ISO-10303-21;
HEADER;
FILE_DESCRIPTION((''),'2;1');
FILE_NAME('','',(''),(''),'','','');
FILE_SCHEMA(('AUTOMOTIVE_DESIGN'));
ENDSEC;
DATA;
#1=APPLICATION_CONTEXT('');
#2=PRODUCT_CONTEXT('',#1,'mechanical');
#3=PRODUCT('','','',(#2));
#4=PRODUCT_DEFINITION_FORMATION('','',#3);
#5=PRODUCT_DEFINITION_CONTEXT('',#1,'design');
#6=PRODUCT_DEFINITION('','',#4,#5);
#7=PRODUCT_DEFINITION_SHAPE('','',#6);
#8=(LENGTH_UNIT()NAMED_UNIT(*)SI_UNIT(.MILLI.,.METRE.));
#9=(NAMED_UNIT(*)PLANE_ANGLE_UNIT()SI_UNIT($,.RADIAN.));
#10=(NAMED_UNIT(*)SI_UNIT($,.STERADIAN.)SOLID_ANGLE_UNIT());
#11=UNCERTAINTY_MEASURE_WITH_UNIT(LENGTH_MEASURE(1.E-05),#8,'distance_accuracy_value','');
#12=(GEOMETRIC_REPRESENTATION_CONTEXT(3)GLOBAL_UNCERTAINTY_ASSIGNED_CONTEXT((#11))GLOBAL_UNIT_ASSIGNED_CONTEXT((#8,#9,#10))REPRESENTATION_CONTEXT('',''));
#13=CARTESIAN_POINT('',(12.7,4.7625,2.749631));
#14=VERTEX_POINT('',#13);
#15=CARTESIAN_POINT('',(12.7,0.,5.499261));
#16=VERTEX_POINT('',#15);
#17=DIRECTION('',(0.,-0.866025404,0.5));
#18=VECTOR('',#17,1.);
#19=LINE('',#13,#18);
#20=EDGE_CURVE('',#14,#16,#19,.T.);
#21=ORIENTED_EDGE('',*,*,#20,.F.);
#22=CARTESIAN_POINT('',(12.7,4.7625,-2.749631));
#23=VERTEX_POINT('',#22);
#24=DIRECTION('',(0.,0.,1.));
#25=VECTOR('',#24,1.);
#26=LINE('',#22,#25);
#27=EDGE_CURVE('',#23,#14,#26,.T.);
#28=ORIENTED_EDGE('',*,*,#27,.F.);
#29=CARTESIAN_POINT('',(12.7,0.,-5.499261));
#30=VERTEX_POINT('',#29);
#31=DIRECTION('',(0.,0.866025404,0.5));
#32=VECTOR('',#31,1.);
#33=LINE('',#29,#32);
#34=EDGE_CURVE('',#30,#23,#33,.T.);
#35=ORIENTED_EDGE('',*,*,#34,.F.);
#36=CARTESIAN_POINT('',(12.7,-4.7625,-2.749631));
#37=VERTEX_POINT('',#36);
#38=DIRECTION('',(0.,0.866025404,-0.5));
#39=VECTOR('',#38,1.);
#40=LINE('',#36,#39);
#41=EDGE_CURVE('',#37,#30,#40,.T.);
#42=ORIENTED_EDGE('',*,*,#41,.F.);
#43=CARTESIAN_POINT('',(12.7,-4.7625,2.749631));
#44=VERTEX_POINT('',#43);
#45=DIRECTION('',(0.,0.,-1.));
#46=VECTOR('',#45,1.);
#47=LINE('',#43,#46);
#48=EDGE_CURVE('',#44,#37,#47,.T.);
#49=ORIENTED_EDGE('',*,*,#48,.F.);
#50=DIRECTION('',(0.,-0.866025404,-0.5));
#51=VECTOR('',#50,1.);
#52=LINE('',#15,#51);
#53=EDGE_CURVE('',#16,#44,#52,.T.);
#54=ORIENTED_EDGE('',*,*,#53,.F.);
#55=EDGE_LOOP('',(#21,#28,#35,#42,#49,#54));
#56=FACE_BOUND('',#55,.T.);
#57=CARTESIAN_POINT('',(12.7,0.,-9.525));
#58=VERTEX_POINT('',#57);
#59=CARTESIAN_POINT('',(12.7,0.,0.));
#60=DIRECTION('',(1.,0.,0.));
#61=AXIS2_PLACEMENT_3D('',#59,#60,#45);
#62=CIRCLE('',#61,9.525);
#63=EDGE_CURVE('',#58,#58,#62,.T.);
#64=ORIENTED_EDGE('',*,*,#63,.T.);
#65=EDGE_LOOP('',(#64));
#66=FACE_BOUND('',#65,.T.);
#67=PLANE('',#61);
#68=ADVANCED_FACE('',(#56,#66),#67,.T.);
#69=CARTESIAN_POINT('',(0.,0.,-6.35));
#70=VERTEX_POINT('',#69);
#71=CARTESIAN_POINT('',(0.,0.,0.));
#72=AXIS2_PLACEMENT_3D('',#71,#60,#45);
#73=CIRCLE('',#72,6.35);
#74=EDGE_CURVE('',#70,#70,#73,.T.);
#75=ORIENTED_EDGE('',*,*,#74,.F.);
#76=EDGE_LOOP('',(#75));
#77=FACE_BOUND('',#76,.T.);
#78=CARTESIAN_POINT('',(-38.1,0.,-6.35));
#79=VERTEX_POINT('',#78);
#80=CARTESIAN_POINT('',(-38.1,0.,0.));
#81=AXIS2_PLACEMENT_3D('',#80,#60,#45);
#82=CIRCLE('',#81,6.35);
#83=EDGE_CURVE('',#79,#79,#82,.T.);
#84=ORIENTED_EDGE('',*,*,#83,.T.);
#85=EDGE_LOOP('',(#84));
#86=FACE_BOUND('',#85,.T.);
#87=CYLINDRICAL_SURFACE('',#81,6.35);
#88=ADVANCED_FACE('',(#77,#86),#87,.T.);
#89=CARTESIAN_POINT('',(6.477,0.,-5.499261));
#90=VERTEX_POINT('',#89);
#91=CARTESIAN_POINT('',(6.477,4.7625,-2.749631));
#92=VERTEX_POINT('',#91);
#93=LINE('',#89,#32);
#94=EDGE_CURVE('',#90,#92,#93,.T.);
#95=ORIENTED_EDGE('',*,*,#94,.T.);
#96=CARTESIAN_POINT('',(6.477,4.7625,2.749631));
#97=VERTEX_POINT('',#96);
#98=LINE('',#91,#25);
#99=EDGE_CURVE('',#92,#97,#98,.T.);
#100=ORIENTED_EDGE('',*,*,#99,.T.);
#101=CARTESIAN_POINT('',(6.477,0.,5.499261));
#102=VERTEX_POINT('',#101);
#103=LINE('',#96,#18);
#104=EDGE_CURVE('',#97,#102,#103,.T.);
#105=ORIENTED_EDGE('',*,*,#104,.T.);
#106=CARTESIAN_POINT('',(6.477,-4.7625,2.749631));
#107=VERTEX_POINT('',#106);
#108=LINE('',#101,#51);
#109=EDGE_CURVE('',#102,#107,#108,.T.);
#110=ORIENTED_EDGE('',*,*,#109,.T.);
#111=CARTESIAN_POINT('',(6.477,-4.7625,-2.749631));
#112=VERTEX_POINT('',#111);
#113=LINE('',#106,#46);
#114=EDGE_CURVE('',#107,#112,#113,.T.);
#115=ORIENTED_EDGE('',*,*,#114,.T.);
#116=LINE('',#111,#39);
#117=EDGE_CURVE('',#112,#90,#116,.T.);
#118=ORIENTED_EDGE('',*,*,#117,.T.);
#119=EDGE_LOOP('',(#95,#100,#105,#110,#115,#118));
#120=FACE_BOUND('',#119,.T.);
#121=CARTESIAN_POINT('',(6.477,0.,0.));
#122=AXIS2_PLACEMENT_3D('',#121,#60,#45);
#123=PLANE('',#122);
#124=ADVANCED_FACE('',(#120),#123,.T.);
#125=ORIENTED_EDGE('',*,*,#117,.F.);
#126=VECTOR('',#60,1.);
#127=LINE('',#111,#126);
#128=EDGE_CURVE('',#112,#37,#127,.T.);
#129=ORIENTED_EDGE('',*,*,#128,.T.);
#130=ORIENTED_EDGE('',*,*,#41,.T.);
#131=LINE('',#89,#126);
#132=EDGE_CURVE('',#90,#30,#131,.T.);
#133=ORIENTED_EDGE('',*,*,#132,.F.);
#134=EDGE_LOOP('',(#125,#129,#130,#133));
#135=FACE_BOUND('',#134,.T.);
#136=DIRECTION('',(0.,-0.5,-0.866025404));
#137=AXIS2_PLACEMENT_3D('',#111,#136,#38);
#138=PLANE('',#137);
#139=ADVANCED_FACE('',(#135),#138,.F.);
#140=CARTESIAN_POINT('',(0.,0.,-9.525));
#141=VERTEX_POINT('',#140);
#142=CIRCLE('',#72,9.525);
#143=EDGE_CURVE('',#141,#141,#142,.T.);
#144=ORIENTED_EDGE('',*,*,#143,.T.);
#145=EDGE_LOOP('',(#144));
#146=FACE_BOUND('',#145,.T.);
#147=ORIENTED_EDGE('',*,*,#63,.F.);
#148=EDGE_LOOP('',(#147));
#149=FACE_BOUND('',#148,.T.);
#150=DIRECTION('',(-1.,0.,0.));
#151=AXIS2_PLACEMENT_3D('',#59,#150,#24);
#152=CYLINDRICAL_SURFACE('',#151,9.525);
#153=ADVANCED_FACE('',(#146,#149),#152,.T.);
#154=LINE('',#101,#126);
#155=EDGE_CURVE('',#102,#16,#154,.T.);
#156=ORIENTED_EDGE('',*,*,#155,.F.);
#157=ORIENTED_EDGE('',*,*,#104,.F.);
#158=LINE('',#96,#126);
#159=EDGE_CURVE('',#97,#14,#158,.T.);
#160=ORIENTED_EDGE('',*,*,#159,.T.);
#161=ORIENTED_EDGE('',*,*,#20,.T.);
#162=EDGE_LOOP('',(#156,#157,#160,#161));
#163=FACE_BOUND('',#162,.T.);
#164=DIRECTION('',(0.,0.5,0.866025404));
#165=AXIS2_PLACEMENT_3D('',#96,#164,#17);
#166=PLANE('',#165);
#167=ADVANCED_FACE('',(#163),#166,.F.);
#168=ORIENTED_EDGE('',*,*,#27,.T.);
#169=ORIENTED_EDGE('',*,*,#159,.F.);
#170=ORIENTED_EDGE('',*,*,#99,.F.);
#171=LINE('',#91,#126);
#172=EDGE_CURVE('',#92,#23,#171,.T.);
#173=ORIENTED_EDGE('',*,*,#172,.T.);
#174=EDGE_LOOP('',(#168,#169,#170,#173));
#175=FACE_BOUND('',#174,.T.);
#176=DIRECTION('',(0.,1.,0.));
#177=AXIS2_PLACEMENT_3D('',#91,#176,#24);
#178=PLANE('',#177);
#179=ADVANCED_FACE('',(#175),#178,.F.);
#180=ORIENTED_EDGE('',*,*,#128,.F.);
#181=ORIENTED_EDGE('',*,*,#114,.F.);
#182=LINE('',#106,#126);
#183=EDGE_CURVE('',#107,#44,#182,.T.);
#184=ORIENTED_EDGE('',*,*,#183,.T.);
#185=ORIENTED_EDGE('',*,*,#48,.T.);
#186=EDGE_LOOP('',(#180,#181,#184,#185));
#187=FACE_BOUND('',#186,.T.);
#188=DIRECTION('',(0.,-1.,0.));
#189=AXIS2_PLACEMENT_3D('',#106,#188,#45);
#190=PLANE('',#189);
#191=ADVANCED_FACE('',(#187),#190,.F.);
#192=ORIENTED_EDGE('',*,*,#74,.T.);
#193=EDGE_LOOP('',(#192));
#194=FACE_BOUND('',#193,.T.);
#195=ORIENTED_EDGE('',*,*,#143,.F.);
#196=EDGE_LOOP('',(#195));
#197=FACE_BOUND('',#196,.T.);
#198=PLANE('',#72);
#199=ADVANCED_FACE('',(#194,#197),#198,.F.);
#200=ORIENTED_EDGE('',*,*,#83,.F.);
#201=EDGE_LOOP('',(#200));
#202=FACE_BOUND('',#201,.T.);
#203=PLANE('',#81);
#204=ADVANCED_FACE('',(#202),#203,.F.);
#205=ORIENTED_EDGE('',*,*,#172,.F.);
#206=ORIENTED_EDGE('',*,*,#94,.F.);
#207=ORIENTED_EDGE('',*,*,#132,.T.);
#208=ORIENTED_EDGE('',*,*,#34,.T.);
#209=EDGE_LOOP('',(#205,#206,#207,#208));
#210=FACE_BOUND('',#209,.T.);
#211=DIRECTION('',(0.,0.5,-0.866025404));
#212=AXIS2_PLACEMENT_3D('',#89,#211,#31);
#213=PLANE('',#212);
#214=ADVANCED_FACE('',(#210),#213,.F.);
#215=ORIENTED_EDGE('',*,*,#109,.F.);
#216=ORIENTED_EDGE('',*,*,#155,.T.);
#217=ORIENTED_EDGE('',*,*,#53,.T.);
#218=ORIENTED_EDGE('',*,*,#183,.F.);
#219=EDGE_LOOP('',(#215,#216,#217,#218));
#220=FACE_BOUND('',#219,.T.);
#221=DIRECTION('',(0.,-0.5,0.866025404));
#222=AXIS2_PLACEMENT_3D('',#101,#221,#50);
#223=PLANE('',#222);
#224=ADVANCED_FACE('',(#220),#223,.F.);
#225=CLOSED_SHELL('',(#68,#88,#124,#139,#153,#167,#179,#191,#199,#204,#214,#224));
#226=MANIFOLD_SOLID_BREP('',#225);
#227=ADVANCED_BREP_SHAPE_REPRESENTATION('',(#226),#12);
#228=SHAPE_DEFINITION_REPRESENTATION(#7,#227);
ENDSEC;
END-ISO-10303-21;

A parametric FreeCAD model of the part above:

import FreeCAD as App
import Part
import Sketcher

V = App.Vector
Q = App.Units.Quantity


def add_polygon(sketch, points):
    """Adds a closed chain of lines whose ends are joined by coincident constraints."""
    first, n = sketch.GeometryCount, len(points)
    for a, b in zip(points, points[1:] + points[:1]):
        sketch.addGeometry(Part.LineSegment(App.Vector(*a, 0), App.Vector(*b, 0)), False)
    for i in range(n):
        sketch.addConstraint(Sketcher.Constraint("Coincident", first + i, 2, first + (i + 1) % n, 1))

doc = App.newDocument("Part")
body = doc.addObject("PartDesign::Body", "Body")

# Sketch on YZ plane
sketch1 = doc.addObject("Sketcher::SketchObject", "Sketch")
body.addObject(sketch1)
sketch1.AttachmentSupport = (doc.YZ_Plane, [""])
sketch1.MapMode = "FlatFace"
sketch1.addGeometry(Part.Circle(V(0, 0, 0), V(0, 0, 1), 6), False)
sketch1.addConstraint(Sketcher.Constraint("Coincident", 0, 3, -1, 1))
sketch1.addConstraint(Sketcher.Constraint("Diameter", 0, Q("0.5 in")))
pad1 = doc.addObject("PartDesign::Pad", "Pad")
body.addObject(pad1)
pad1.Profile = sketch1
pad1.Length = Q("1.5 in")
pad1.Reversed = True

# Sketch on YZ plane
sketch2 = doc.addObject("Sketcher::SketchObject", "Sketch001")
body.addObject(sketch2)
sketch2.AttachmentSupport = (doc.YZ_Plane, [""])
sketch2.MapMode = "FlatFace"
sketch2.addGeometry(Part.Circle(V(0, 0, 0), V(0, 0, 1), 10), False)
sketch2.addConstraint(Sketcher.Constraint("Coincident", 0, 3, -1, 1))
sketch2.addConstraint(Sketcher.Constraint("Diameter", 0, Q("0.75 in")))
pad2 = doc.addObject("PartDesign::Pad", "Pad001")
body.addObject(pad2)
pad2.Profile = sketch2
pad2.Length = Q("0.5 in")

# Sketch on YZ plane
sketch3 = doc.addObject("Sketcher::SketchObject", "Sketch002")
body.addObject(sketch3)
sketch3.AttachmentSupport = (doc.YZ_Plane, [""])
sketch3.MapMode = "FlatFace"
sketch3.AttachmentOffset = App.Placement(V(0, 0, 0.5 * 25.4), App.Rotation())
add_polygon(sketch3, [(5, -3), (5, 3), (0, 5), (-5, 3), (-5, -3), (0, -5)])  # lines 0-5
sketch3.addConstraint(Sketcher.Constraint("Vertical", 0))
sketch3.addConstraint(Sketcher.Constraint("Vertical", 3))
sketch3.addConstraint(Sketcher.Constraint("Symmetric", 0, 2, 3, 2, -1, 1))
sketch3.addConstraint(Sketcher.Constraint("Symmetric", 1, 2, 4, 2, -1, 1))
sketch3.addConstraint(Sketcher.Constraint("PointOnObject", 1, 2, -2))
sketch3.addConstraint(Sketcher.Constraint("Parallel", 2, 5))
sketch3.addConstraint(Sketcher.Constraint("Horizontal", 0, 2, 2, 2))
sketch3.addConstraint(Sketcher.Constraint("Angle", 1, Q("150 deg")))
sketch3.addConstraint(Sketcher.Constraint("DistanceX", -1, 1, 0, 2, Q("0.1875 in")))
sketch3.addConstraint(Sketcher.Constraint("DistanceY", 0, 1, 0, 2, 5.499261))
pocket1 = doc.addObject("PartDesign::Pocket", "Pocket")
body.addObject(pocket1)
pocket1.Profile = sketch3
pocket1.Length = Q("0.245 in")

doc.recompute()
